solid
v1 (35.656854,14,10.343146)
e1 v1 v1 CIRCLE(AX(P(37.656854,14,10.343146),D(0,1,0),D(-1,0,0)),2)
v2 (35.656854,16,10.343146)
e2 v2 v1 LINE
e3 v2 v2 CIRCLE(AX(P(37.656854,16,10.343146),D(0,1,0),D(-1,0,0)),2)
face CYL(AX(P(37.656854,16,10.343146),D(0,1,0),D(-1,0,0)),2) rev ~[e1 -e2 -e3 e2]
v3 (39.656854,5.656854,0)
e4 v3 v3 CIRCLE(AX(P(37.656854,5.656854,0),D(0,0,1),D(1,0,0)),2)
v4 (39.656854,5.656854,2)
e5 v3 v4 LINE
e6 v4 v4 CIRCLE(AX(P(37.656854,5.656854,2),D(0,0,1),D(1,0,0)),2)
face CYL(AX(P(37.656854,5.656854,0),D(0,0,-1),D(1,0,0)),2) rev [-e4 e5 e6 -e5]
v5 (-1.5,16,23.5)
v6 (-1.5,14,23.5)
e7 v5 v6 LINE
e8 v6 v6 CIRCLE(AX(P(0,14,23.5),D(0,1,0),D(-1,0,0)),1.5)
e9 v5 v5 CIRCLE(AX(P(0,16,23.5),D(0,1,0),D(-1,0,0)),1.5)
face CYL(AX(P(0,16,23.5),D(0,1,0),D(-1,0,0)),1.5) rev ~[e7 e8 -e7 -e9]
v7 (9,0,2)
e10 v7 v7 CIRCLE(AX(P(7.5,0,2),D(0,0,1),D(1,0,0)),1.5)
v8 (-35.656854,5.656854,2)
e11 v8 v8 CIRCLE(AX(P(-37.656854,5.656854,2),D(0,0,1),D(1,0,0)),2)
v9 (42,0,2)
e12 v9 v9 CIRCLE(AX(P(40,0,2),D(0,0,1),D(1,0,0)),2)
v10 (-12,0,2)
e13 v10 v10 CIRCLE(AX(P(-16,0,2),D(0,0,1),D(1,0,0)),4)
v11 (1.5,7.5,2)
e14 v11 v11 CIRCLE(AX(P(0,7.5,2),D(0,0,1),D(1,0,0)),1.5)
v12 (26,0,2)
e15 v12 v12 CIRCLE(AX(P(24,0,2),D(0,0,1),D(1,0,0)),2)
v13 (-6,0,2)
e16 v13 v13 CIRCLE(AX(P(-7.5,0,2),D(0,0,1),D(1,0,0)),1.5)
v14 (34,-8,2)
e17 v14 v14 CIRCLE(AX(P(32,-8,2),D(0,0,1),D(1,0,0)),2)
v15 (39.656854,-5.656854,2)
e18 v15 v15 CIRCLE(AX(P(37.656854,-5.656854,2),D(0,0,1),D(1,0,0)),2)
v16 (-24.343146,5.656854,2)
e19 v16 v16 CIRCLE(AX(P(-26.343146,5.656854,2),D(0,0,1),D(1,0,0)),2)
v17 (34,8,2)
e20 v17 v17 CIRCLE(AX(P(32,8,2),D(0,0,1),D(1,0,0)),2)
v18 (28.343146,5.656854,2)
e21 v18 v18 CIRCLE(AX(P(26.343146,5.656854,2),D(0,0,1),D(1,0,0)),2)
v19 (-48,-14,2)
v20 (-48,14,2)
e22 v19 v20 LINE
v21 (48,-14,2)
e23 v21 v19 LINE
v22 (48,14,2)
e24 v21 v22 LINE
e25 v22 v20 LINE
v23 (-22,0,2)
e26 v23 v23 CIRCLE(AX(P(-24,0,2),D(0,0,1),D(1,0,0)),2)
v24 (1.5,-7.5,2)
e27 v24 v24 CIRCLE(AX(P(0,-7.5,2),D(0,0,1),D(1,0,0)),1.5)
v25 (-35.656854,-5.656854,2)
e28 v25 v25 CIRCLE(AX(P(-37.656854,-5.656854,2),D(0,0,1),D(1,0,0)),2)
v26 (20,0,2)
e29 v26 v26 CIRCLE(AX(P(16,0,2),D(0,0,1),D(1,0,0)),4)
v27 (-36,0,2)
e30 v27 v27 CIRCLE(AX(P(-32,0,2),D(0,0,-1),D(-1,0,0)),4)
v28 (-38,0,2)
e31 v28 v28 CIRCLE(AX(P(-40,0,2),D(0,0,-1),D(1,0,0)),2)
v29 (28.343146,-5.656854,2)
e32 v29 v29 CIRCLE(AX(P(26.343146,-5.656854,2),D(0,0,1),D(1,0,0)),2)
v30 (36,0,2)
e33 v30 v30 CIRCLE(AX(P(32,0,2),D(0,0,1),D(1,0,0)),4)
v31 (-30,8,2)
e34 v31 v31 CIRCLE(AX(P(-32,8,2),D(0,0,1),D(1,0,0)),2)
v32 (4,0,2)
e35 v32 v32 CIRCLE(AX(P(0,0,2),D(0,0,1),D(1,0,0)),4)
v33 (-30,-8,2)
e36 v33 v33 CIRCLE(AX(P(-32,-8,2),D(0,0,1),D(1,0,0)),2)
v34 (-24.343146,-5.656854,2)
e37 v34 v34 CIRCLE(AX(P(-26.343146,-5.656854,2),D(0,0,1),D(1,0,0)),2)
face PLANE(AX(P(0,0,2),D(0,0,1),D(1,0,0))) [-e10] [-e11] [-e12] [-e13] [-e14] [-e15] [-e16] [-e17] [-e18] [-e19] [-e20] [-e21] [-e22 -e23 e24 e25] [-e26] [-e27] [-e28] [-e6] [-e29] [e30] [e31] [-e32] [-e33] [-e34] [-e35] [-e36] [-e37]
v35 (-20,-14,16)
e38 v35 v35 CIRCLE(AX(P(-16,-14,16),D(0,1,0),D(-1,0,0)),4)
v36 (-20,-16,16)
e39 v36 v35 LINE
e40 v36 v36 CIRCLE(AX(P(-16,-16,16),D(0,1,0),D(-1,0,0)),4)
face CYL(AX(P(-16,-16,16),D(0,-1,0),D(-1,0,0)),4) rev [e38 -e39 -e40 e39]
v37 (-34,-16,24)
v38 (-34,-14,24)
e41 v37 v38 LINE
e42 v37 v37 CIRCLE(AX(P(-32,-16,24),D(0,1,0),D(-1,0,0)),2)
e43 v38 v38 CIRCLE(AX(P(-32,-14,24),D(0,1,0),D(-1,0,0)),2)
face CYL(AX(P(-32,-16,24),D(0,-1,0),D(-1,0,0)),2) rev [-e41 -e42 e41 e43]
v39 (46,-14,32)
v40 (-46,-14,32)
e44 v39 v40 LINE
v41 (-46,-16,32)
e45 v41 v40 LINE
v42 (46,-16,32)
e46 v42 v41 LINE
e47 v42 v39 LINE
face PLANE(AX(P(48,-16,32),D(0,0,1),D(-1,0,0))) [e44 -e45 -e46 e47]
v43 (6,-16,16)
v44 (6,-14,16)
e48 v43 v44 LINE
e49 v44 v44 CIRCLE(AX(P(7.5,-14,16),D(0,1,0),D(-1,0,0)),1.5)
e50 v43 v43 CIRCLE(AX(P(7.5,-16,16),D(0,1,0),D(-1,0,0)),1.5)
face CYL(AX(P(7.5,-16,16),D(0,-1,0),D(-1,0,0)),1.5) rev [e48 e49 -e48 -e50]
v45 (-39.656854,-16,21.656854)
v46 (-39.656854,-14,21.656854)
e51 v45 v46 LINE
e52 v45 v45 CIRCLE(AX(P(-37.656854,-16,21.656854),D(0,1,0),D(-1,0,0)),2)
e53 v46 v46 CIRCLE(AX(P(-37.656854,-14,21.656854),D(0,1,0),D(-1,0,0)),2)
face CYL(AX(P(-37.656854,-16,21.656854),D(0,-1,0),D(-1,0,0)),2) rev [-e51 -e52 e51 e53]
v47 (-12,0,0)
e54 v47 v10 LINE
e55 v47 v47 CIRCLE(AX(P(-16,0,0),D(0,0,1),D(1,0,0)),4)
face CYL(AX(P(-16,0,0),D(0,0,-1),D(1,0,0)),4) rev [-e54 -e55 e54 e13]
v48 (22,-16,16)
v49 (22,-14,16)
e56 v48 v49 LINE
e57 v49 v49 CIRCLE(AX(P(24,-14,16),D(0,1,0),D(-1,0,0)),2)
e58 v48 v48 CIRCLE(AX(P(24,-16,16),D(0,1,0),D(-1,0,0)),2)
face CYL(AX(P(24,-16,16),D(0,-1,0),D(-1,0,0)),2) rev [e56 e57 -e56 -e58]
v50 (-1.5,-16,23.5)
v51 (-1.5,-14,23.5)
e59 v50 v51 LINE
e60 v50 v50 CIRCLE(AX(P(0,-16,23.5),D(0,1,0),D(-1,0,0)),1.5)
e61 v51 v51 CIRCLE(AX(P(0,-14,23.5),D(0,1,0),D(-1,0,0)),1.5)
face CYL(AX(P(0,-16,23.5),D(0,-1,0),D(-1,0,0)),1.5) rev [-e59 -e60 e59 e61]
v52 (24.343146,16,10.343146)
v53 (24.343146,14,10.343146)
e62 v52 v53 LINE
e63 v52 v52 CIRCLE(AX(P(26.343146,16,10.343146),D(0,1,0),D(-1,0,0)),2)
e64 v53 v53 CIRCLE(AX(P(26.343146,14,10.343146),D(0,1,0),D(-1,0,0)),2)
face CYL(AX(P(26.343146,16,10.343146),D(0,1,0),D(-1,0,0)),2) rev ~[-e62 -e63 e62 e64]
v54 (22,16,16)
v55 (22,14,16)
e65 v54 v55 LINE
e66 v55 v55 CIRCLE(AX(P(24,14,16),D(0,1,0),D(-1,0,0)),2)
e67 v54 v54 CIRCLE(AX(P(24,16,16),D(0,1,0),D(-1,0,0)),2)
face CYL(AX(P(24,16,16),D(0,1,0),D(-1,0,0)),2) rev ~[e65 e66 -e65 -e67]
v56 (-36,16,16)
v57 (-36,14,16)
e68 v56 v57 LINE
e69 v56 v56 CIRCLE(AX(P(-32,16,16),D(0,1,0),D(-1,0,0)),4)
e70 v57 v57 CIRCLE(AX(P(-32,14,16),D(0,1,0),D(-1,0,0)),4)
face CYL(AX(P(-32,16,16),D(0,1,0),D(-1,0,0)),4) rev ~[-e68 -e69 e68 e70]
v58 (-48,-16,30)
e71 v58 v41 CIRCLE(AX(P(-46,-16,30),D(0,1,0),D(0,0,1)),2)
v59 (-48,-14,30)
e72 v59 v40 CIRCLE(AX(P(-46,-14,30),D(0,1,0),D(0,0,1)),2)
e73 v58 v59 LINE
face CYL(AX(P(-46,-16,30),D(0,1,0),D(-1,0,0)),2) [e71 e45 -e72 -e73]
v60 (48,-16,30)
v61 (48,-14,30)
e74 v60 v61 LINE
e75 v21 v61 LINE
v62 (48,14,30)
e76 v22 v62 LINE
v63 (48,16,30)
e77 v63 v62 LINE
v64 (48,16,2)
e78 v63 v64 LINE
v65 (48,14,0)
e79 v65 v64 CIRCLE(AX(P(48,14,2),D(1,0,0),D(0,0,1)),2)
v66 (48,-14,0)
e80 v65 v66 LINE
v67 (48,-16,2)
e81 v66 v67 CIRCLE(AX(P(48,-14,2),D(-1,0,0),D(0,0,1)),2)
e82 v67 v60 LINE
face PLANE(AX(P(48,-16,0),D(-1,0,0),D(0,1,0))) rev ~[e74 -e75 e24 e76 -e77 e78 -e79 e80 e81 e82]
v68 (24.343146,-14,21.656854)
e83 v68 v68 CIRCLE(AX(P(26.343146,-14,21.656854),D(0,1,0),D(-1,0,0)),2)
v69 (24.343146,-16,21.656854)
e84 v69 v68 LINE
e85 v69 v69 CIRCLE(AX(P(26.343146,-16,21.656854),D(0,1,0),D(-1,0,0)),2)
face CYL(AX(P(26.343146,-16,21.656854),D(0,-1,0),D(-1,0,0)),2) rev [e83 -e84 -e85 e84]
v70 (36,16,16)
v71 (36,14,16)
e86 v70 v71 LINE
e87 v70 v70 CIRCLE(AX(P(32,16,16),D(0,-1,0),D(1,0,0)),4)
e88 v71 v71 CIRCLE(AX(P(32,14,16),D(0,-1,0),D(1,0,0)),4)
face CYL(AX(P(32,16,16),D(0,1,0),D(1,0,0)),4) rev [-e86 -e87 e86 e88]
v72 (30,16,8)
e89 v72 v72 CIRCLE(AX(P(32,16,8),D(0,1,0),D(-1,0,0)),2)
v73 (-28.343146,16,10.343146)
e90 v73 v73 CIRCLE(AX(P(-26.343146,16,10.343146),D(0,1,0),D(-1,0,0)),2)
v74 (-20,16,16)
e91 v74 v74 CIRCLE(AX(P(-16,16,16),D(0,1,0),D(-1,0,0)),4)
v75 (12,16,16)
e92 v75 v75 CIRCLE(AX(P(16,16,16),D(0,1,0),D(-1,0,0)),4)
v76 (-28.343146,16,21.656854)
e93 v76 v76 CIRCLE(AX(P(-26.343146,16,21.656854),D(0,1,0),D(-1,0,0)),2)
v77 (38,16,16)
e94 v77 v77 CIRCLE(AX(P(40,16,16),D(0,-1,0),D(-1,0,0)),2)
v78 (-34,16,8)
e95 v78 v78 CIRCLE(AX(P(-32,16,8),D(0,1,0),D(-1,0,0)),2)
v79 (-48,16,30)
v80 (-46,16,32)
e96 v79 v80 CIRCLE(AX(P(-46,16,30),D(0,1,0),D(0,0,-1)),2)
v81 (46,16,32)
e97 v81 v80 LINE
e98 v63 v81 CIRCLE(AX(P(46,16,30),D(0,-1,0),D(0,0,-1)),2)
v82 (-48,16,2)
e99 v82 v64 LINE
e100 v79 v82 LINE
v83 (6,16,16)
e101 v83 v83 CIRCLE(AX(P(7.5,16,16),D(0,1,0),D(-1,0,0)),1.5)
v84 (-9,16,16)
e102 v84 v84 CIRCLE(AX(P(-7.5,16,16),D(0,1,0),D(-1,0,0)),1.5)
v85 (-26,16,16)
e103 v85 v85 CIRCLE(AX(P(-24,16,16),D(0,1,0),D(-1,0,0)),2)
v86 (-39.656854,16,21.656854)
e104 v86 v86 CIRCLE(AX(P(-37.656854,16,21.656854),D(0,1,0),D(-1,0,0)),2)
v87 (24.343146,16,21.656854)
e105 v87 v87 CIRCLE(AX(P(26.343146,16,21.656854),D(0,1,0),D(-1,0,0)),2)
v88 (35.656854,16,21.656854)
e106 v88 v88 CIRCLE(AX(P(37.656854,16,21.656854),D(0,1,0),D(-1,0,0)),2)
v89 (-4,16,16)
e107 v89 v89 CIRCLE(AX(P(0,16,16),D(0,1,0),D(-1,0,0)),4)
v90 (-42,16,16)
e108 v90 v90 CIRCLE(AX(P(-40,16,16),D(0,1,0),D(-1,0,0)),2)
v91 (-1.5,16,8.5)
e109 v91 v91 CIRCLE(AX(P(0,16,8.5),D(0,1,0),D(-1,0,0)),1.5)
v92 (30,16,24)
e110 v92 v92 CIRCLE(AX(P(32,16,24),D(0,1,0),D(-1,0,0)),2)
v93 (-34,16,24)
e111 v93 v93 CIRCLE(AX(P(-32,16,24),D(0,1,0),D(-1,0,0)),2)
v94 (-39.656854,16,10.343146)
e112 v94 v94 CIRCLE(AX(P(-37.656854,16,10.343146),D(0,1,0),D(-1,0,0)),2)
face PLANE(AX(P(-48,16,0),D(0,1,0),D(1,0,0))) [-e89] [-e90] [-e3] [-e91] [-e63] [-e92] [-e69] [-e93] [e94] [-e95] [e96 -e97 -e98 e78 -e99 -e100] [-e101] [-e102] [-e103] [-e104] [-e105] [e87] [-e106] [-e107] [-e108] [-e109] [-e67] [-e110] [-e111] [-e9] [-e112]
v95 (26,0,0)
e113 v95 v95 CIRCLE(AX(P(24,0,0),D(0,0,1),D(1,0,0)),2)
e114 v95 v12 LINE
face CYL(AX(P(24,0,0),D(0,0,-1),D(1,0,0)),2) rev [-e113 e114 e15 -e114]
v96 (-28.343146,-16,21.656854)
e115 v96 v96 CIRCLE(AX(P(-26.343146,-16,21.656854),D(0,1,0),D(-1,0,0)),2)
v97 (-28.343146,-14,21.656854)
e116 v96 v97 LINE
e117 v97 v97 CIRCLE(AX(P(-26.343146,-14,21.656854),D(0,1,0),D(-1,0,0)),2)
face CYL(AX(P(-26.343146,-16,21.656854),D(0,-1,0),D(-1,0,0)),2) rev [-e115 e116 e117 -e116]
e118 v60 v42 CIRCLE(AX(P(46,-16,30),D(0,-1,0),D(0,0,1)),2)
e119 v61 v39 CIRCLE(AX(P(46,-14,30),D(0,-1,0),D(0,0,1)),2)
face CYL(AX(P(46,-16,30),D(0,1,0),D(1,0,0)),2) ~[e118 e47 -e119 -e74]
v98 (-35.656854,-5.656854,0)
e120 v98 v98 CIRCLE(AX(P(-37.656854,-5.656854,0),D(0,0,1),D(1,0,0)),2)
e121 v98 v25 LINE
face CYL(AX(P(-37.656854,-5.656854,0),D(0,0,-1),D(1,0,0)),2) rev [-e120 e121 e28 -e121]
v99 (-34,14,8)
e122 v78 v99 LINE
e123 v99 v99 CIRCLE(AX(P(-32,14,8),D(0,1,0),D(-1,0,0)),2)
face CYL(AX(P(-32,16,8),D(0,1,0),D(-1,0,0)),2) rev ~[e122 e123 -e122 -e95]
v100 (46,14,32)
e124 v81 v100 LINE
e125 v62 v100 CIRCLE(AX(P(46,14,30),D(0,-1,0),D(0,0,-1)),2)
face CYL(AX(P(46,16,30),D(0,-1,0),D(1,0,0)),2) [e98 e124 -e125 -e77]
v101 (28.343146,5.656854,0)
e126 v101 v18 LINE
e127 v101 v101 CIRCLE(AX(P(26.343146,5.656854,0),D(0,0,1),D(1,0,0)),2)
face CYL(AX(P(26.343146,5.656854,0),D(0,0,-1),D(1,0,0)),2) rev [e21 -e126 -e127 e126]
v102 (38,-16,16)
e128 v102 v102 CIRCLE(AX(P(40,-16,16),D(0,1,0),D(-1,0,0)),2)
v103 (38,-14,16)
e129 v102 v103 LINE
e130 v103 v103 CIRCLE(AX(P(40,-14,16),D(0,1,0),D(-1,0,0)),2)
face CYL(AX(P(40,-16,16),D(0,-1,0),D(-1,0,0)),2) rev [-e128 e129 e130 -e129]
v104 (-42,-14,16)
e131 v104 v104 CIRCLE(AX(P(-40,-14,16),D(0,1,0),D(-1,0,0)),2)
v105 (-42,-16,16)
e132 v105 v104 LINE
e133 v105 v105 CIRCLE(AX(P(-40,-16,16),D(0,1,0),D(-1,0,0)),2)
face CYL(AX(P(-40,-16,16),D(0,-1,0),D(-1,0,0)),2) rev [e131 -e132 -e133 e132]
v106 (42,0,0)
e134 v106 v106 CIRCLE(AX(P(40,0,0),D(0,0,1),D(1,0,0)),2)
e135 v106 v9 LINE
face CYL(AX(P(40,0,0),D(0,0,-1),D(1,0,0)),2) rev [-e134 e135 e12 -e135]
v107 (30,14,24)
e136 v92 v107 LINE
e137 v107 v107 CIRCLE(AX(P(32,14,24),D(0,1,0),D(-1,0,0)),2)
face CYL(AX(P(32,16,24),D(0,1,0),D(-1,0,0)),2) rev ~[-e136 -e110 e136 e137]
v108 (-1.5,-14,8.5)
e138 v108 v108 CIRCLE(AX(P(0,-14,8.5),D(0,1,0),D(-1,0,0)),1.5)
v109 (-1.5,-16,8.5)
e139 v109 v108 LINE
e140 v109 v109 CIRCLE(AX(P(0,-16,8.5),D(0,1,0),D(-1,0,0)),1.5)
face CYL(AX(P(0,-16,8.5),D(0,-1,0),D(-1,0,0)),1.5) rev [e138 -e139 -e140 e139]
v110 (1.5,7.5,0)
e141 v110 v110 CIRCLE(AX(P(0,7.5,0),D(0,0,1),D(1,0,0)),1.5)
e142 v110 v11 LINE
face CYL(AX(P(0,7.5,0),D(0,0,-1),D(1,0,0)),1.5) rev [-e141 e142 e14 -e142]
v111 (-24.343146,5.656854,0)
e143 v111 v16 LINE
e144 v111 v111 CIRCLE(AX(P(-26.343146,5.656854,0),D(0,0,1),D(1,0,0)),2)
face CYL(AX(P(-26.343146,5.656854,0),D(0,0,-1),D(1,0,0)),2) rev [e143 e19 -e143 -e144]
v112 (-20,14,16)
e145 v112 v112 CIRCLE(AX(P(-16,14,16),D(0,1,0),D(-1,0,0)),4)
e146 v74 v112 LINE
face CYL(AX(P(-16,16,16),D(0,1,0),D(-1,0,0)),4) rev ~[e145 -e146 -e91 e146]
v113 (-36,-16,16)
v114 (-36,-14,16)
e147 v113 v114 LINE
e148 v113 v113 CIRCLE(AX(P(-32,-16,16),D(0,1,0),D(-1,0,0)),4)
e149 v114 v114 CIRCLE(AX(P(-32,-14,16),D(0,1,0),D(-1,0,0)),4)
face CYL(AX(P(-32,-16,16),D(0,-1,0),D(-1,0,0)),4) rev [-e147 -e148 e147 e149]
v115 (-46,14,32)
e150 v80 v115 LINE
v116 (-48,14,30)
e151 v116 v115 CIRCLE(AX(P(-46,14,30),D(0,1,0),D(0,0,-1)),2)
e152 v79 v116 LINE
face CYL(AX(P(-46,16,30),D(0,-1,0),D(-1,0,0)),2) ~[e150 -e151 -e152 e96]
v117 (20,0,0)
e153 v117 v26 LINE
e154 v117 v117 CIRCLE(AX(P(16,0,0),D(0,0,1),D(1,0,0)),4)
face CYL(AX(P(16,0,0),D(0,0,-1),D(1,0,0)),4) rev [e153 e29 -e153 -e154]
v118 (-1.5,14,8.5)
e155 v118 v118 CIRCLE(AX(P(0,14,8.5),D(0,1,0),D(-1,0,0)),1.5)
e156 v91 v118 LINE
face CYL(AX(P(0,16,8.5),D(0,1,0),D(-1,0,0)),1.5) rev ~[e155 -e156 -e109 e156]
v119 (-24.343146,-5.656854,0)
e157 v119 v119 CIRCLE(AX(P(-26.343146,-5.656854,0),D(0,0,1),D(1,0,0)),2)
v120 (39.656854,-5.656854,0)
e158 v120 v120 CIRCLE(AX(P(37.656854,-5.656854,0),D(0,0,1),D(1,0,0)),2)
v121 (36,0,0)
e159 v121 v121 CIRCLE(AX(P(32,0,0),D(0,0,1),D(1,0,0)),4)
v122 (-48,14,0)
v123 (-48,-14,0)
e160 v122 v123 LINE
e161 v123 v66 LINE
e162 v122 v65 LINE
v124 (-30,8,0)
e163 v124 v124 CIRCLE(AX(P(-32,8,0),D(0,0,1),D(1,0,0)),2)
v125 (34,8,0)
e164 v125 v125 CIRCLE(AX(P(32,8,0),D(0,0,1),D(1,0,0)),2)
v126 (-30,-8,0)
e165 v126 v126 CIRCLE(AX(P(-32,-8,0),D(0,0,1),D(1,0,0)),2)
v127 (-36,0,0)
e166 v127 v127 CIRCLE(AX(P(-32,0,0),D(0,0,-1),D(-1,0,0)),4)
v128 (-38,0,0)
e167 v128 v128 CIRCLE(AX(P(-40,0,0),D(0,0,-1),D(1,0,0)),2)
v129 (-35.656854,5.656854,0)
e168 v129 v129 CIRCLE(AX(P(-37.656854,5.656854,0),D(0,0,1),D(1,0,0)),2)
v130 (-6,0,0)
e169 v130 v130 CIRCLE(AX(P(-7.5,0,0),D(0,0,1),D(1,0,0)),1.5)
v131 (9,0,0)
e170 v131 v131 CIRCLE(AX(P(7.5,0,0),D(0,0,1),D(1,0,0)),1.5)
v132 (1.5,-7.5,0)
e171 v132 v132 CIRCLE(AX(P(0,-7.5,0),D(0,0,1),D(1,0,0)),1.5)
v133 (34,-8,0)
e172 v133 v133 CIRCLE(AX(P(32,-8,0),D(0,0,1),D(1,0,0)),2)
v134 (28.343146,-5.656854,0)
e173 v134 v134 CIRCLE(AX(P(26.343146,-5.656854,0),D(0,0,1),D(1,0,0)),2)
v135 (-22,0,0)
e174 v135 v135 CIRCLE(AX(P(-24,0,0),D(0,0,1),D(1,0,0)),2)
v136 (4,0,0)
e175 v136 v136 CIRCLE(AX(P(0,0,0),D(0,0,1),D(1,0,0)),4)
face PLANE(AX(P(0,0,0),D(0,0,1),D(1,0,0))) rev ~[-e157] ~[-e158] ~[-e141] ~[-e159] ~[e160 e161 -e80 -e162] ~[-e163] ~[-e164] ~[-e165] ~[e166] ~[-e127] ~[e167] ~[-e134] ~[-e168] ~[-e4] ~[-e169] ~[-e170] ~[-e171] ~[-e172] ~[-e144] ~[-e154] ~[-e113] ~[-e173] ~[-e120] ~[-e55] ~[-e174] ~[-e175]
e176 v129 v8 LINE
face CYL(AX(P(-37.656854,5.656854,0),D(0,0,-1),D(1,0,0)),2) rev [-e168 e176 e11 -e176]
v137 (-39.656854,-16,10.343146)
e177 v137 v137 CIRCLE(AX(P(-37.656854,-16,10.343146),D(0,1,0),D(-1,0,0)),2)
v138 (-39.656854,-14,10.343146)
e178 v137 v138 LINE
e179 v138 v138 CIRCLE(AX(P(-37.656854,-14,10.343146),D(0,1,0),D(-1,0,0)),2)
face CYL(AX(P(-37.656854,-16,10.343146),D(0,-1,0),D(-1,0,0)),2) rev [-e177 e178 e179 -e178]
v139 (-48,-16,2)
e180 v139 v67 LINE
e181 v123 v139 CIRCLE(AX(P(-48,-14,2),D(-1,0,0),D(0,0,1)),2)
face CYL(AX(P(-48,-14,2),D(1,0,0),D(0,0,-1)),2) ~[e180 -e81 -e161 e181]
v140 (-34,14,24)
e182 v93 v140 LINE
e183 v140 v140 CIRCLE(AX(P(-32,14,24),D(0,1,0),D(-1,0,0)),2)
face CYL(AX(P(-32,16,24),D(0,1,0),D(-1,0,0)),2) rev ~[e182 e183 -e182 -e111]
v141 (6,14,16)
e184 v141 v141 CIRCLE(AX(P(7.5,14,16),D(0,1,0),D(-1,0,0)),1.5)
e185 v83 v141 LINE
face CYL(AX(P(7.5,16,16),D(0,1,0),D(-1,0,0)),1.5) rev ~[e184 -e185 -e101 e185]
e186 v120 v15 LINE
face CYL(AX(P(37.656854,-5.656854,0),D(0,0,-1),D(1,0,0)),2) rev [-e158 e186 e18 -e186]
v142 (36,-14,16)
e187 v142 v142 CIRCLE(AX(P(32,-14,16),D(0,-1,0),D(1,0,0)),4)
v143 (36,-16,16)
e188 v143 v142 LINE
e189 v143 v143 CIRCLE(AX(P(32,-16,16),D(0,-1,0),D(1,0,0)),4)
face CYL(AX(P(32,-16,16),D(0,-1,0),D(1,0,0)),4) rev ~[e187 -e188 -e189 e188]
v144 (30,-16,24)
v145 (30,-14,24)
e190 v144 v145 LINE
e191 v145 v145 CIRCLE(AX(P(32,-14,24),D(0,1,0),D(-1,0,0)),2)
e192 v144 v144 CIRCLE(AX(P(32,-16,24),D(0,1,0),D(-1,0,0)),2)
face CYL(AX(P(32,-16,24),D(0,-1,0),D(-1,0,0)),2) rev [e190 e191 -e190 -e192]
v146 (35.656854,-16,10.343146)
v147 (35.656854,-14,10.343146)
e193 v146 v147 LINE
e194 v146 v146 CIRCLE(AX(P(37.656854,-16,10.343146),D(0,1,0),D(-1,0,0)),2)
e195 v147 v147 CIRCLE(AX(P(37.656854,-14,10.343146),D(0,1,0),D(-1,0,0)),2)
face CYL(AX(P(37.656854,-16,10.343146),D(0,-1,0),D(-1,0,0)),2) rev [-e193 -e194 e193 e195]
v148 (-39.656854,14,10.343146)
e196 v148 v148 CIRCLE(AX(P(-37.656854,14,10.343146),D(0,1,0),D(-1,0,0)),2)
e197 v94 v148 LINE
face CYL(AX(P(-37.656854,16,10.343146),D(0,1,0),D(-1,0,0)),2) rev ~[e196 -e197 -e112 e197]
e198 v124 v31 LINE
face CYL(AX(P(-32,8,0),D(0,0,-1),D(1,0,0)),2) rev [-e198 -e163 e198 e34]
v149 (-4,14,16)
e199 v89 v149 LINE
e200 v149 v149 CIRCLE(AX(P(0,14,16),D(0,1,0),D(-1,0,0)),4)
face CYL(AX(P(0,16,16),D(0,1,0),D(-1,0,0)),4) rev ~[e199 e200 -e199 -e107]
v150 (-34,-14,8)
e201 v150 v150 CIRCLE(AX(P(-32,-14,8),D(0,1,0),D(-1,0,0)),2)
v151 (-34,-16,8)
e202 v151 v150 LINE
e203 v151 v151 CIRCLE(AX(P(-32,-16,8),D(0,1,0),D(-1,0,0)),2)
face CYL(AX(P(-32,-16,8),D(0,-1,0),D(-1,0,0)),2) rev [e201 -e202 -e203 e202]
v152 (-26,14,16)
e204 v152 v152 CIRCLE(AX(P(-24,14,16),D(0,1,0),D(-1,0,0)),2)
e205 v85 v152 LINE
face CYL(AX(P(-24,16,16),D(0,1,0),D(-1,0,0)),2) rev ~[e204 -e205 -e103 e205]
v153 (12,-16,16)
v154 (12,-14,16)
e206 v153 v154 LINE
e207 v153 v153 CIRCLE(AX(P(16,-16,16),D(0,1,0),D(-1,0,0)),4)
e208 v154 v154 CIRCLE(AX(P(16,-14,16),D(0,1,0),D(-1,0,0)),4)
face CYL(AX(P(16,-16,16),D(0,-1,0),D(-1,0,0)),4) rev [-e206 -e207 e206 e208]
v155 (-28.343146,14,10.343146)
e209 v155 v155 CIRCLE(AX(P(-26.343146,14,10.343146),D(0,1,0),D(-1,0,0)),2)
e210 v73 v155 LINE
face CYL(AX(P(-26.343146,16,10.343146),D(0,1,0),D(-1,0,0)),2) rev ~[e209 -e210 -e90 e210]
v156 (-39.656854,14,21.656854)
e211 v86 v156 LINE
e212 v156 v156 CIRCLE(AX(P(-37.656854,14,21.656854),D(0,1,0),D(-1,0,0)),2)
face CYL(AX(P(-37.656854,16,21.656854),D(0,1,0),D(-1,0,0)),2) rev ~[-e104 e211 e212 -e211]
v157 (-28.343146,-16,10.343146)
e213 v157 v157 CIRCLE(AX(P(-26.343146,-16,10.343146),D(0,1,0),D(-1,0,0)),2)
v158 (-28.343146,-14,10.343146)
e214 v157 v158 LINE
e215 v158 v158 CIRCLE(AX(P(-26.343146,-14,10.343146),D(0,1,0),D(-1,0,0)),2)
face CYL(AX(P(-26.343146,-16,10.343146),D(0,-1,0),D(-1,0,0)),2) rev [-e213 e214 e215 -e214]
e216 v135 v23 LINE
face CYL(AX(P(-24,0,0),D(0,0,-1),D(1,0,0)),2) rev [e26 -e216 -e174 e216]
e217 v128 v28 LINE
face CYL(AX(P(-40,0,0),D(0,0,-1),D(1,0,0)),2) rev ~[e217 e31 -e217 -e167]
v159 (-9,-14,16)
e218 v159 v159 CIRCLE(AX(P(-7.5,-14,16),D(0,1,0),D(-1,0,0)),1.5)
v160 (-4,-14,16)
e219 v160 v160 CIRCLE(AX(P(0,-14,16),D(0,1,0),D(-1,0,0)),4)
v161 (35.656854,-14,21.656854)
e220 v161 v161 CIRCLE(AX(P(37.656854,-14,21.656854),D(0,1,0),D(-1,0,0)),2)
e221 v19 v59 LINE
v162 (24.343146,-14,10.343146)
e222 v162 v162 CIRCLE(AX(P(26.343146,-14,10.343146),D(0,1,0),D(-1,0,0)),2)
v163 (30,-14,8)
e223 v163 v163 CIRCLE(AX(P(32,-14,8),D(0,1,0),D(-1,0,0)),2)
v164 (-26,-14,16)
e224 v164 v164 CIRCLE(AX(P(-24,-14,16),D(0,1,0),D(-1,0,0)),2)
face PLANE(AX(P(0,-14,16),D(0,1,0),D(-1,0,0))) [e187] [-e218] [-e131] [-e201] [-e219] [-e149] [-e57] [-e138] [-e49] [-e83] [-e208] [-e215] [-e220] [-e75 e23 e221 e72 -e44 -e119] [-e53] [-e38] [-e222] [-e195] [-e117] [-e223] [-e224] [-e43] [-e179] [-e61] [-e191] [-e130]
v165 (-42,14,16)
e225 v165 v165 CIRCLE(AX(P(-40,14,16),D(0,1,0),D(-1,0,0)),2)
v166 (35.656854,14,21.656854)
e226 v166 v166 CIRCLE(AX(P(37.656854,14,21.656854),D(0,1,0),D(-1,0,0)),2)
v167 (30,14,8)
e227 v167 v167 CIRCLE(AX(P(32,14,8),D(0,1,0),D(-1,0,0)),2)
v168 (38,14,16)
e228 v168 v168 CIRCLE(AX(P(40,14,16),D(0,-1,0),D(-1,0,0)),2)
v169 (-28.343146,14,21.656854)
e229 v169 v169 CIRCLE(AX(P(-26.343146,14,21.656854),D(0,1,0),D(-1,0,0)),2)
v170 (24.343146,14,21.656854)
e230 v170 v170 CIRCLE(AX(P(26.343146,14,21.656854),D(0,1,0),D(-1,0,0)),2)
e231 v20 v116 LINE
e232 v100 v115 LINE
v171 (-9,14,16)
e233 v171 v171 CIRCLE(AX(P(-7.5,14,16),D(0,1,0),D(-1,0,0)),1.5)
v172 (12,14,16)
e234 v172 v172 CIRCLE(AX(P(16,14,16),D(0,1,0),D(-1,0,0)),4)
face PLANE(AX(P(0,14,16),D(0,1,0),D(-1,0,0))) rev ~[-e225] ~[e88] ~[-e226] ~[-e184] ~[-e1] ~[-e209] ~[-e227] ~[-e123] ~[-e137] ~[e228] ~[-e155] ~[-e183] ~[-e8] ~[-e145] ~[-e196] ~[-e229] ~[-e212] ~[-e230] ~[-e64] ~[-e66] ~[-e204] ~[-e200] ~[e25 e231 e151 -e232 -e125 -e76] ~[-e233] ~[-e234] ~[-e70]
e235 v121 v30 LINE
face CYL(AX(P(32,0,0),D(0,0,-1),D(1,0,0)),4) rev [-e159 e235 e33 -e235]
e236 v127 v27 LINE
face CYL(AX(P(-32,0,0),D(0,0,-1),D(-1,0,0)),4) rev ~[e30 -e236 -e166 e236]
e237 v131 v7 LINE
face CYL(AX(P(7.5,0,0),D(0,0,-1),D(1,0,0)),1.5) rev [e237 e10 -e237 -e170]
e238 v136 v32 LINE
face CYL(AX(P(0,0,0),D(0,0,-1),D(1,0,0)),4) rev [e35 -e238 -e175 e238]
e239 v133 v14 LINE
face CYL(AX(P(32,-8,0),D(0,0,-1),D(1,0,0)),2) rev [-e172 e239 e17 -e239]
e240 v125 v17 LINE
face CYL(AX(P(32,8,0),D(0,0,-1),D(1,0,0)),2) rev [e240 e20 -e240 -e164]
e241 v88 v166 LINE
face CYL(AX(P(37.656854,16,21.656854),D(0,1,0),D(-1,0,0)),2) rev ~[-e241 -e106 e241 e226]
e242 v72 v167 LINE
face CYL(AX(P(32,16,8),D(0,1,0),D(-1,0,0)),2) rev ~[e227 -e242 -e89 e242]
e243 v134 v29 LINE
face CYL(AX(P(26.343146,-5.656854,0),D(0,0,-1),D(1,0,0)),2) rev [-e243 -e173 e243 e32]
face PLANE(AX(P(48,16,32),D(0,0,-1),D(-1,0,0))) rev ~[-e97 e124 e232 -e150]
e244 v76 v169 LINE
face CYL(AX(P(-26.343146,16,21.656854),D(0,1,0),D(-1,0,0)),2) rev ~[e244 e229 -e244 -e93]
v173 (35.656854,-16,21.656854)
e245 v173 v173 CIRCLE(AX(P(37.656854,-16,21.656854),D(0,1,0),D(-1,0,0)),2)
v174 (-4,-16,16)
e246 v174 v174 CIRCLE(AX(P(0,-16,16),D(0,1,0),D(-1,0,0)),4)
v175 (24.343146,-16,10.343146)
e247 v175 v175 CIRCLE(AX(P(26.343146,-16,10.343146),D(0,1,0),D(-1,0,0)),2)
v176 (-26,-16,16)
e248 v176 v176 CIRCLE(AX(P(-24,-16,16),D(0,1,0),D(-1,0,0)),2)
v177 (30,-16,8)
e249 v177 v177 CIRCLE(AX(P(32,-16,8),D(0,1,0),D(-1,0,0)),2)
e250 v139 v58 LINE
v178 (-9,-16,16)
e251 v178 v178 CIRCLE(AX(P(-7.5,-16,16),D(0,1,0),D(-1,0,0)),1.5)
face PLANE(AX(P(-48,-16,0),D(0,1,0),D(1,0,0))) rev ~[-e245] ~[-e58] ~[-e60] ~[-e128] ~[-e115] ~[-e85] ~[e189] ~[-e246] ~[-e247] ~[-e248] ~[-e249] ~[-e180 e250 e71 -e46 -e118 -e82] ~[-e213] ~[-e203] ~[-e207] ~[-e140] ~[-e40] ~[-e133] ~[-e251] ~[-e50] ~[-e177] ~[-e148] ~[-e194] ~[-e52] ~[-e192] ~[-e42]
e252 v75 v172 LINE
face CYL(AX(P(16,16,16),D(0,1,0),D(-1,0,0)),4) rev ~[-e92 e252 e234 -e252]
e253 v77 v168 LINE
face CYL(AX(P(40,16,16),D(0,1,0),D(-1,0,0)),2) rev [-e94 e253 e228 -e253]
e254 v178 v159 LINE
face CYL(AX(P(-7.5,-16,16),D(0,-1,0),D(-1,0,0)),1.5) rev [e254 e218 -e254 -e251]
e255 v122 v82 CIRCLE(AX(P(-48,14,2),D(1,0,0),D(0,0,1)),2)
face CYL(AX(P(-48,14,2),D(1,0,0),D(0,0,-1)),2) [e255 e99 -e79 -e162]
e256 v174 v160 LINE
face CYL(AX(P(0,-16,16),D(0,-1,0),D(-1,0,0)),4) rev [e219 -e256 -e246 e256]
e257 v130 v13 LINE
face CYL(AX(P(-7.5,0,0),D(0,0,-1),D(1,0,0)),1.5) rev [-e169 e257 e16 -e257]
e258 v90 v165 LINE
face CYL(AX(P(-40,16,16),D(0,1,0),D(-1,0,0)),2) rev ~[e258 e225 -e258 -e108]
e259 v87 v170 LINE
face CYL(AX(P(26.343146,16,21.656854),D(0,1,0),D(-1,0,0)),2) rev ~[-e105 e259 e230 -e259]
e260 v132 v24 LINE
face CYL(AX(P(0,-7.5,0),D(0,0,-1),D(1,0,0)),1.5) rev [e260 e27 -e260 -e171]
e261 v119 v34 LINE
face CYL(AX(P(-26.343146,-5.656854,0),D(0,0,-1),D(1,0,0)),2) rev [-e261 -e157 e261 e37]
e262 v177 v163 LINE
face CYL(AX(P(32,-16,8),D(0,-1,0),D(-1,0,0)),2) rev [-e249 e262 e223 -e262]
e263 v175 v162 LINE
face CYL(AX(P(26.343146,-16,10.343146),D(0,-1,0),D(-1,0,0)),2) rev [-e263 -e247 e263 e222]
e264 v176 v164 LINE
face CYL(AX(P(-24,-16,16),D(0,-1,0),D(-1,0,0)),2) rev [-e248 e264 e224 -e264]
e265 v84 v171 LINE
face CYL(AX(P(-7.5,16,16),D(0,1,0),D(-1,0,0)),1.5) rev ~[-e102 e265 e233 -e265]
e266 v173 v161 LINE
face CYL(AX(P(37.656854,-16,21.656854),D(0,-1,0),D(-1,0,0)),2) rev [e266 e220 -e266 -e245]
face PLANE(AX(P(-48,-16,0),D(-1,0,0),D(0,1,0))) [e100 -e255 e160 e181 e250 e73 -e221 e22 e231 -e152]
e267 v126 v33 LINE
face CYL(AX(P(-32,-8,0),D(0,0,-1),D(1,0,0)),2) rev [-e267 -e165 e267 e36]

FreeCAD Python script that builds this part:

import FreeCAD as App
import Part
import Sketcher
Q = App.Units.Quantity


def edges_at(feature, points):
    """Names of the edges that pass closest to the given points."""
    edges = feature.Shape.Edges
    near = lambda p: min(range(len(edges)), key=lambda i: edges[i].distToShape(Part.Vertex(*p))[0])
    return sorted({f"Edge{near(p) + 1}" for p in points})

doc = App.newDocument("Part")
params = doc.addObject("Spreadsheet::Sheet", "Params")
for row, (alias, value) in enumerate([
    ("sketch1_diameter", "4 mm"),
    ("sketch1_diameter2", "3 mm"),
    ("sketch1_diameter3", "8 mm"),
    ("sketch1_width", "96 mm"),
    ("sketch1_height", "32 mm"),
    ("pad1_length", "2 mm"),
    ("sketch2_diameter", "4 mm"),
    ("sketch2_diameter2", "3 mm"),
    ("sketch2_diameter3", "8 mm"),
    ("sketch2_width", "96 mm"),
    ("sketch2_height", "32 mm"),
    ("pad2_length", "2 mm"),
    ("sketch3_diameter", "4 mm"),
    ("sketch3_diameter2", "3 mm"),
    ("sketch3_diameter3", "8 mm"),
    ("sketch3_width", "96 mm"),
    ("sketch3_height", "32 mm"),
    ("pad3_length", "2 mm"),
    ("fillet_radius", "2 mm"),
], start=1):
    params.set(f"A{row}", alias)
    params.set(f"B{row}", "=" + value)
    params.setAlias(f"B{row}", alias)

body = doc.addObject("PartDesign::Body", "Body")

# Sketch on XY plane
sketch1 = body.newObject("Sketcher::SketchObject", "Sketch")
sketch1.AttachmentSupport = (doc.getObject("XY_Plane"), [""])
sketch1.MapMode = "FlatFace"
sketch1.addGeometry([
    Part.LineSegment(App.Vector(-48, 16, 0), App.Vector(-48, -16, 0)),  # 0
    Part.LineSegment(App.Vector(-48, -16, 0), App.Vector(48, -16, 0)),  # 1
    Part.LineSegment(App.Vector(48, -16, 0), App.Vector(48, 16, 0)),  # 2
    Part.LineSegment(App.Vector(48, 16, 0), App.Vector(-48, 16, 0)),  # 3
    Part.Circle(App.Vector(-32, -8, 0), App.Vector(0, 0, 1), 2),  # 4
    Part.Circle(App.Vector(-37.7, -5.7, 0), App.Vector(0, 0, 1), 2),  # 5
    Part.Circle(App.Vector(-26.3, -5.7, 0), App.Vector(0, 0, 1), 2),  # 6
    Part.Circle(App.Vector(0, -7.5, 0), App.Vector(0, 0, 1), 1.5),  # 7
    Part.Circle(App.Vector(32, -8, 0), App.Vector(0, 0, 1), 2),  # 8
    Part.Circle(App.Vector(26.3, -5.7, 0), App.Vector(0, 0, 1), 2),  # 9
    Part.Circle(App.Vector(37.7, -5.7, 0), App.Vector(0, 0, 1), 2),  # 10
    Part.Circle(App.Vector(-40, 0, 0), App.Vector(0, 0, 1), 2),  # 11
    Part.Circle(App.Vector(-32, 0, 0), App.Vector(0, 0, 1), 4),  # 12
    Part.Circle(App.Vector(-24, 0, 0), App.Vector(0, 0, 1), 2),  # 13
    Part.Circle(App.Vector(-16, 0, 0), App.Vector(0, 0, 1), 4),  # 14
    Part.Circle(App.Vector(-7.5, 0, 0), App.Vector(0, 0, 1), 1.5),  # 15
    Part.Circle(App.Vector(-37.7, 5.7, 0), App.Vector(0, 0, 1), 2),  # 16
    Part.Circle(App.Vector(-26.3, 5.7, 0), App.Vector(0, 0, 1), 2),  # 17
    Part.Circle(App.Vector(-32, 8, 0), App.Vector(0, 0, 1), 2),  # 18
    Part.Circle(App.Vector(0, 0, 0), App.Vector(0, 0, 1), 4),  # 19
    Part.Circle(App.Vector(7.5, 0, 0), App.Vector(0, 0, 1), 1.5),  # 20
    Part.Circle(App.Vector(16, 0, 0), App.Vector(0, 0, 1), 4),  # 21
    Part.Circle(App.Vector(24, 0, 0), App.Vector(0, 0, 1), 2),  # 22
    Part.Circle(App.Vector(32, 0, 0), App.Vector(0, 0, 1), 4),  # 23
    Part.Circle(App.Vector(40, 0, 0), App.Vector(0, 0, 1), 2),  # 24
    Part.Circle(App.Vector(0, 7.5, 0), App.Vector(0, 0, 1), 1.5),  # 25
    Part.Circle(App.Vector(26.3, 5.7, 0), App.Vector(0, 0, 1), 2),  # 26
    Part.Circle(App.Vector(37.7, 5.7, 0), App.Vector(0, 0, 1), 2),  # 27
    Part.Circle(App.Vector(32, 8, 0), App.Vector(0, 0, 1), 2),  # 28
], False)
sketch1.addConstraint([
    Sketcher.Constraint("Coincident", 0, 2, 1, 1),
    Sketcher.Constraint("Coincident", 1, 2, 2, 1),
    Sketcher.Constraint("Coincident", 2, 2, 3, 1),
    Sketcher.Constraint("Coincident", 3, 2, 0, 1),
    Sketcher.Constraint("Vertical", 0),
    Sketcher.Constraint("Horizontal", 1),
    Sketcher.Constraint("Vertical", 2),
    Sketcher.Constraint("Horizontal", 3),
    Sketcher.Constraint("Coincident", 19, 3, -1, 1),
    Sketcher.Constraint("Equal", 4, 5),
    Sketcher.Constraint("Equal", 5, 6),
    Sketcher.Constraint("Equal", 6, 8),
    Sketcher.Constraint("Equal", 8, 9),
    Sketcher.Constraint("Equal", 9, 10),
    Sketcher.Constraint("Equal", 10, 11),
    Sketcher.Constraint("Equal", 11, 13),
    Sketcher.Constraint("Equal", 12, 14),
    Sketcher.Constraint("Equal", 7, 15),
    Sketcher.Constraint("Equal", 13, 16),
    Sketcher.Constraint("Equal", 16, 17),
    Sketcher.Constraint("Equal", 17, 18),
    Sketcher.Constraint("Equal", 14, 19),
    Sketcher.Constraint("Equal", 15, 20),
    Sketcher.Constraint("Equal", 19, 21),
    Sketcher.Constraint("Equal", 18, 22),
    Sketcher.Constraint("Equal", 21, 23),
    Sketcher.Constraint("Equal", 22, 24),
    Sketcher.Constraint("Equal", 20, 25),
    Sketcher.Constraint("Equal", 24, 26),
    Sketcher.Constraint("Equal", 26, 27),
    Sketcher.Constraint("Equal", 27, 28),
    Sketcher.Constraint("Symmetric", 10, 3, 16, 3, -1, 1),
    Sketcher.Constraint("Symmetric", 9, 3, 17, 3, -1, 1),
    Sketcher.Constraint("Symmetric", 8, 3, 18, 3, -1, 1),
    Sketcher.Constraint("Symmetric", 15, 3, 20, 3, -1, 1),
    Sketcher.Constraint("Symmetric", 14, 3, 21, 3, -1, 1),
    Sketcher.Constraint("Symmetric", 13, 3, 22, 3, -1, 1),
    Sketcher.Constraint("Symmetric", 12, 3, 23, 3, -1, 1),
    Sketcher.Constraint("Symmetric", 11, 3, 24, 3, -1, 1),
    Sketcher.Constraint("Symmetric", 7, 3, 25, 3, -1, 1),
    Sketcher.Constraint("Symmetric", 6, 3, 26, 3, -1, 1),
    Sketcher.Constraint("Symmetric", 5, 3, 27, 3, -1, 1),
    Sketcher.Constraint("Symmetric", 4, 3, 28, 3, -1, 1),
    Sketcher.Constraint("Symmetric", 0, 2, 2, 2, -1, 1),
    Sketcher.Constraint("Symmetric", 4, 3, 8, 3, -2),
    Sketcher.Constraint("Symmetric", 6, 3, 9, 3, -2),
    Sketcher.Constraint("Symmetric", 5, 3, 10, 3, -2),
    Sketcher.Constraint("PointOnObject", 7, 3, -2),
    Sketcher.Constraint("PointOnObject", 11, 3, -1),
    Sketcher.Constraint("PointOnObject", 12, 3, -1),
    Sketcher.Constraint("PointOnObject", 13, 3, -1),
    Sketcher.Constraint("PointOnObject", 14, 3, -1),
    Sketcher.Constraint("PointOnObject", 15, 3, -1),
    Sketcher.Constraint("Horizontal", 5, 3, 6, 3),
    Sketcher.Constraint("Vertical", 4, 3, 12, 3),
    Sketcher.Constraint("Diameter", 4, Q("4 mm")),
    Sketcher.Constraint("Diameter", 7, Q("3 mm")),
    Sketcher.Constraint("Diameter", 12, Q("8 mm")),
    Sketcher.Constraint("DistanceX", 1, 1, 1, 2, Q("96 mm")),
    Sketcher.Constraint("DistanceY", 0, 2, 0, 1, Q("32 mm")),
    Sketcher.Constraint("DistanceX", 4, 3, -1, 1, Q("32 mm")),
    Sketcher.Constraint("DistanceY", 4, 3, -1, 1, Q("8 mm")),
    Sketcher.Constraint("DistanceX", 11, 3, -1, 1, Q("40 mm")),
    Sketcher.Constraint("DistanceX", 13, 3, -1, 1, Q("24 mm")),
    Sketcher.Constraint("DistanceX", 14, 3, -1, 1, Q("16 mm")),
    Sketcher.Constraint("DistanceX", 5, 3, 9, 3, Q("64 mm")),
    Sketcher.Constraint("DistanceX", 15, 3, 20, 3, Q("15 mm")),
    Sketcher.Constraint("DistanceY", 7, 3, 25, 3, Q("15 mm")),
    Sketcher.Constraint("DistanceX", 5, 3, 6, 3, Q("11.313708 mm")),
    Sketcher.Constraint("DistanceY", 5, 3, -1, 1, Q("5.656854 mm")),
])
sketch1.setExpression("Constraints[55]", "Params.sketch1_diameter")
sketch1.setExpression("Constraints[56]", "Params.sketch1_diameter2")
sketch1.setExpression("Constraints[57]", "Params.sketch1_diameter3")
sketch1.setExpression("Constraints[58]", "Params.sketch1_width")
sketch1.setExpression("Constraints[59]", "Params.sketch1_height")
pad1 = body.newObject("PartDesign::Pad", "Pad")
pad1.Profile = sketch1
pad1.setExpression("Length", "Params.pad1_length")

# Sketch on XZ plane
sketch2 = body.newObject("Sketcher::SketchObject", "Sketch001")
sketch2.AttachmentSupport = (doc.getObject("XZ_Plane"), [""])
sketch2.MapMode = "FlatFace"
sketch2.AttachmentOffset = App.Placement(App.Vector(0, 0, -16), App.Rotation())
sketch2.addGeometry([
    Part.LineSegment(App.Vector(48, 32, 0), App.Vector(48, 0, 0)),  # 0
    Part.LineSegment(App.Vector(48, 0, 0), App.Vector(-48, 0, 0)),  # 1
    Part.LineSegment(App.Vector(-48, 0, 0), App.Vector(-48, 32, 0)),  # 2
    Part.LineSegment(App.Vector(-48, 32, 0), App.Vector(48, 32, 0)),  # 3
    Part.Circle(App.Vector(32, 8, 0), App.Vector(0, 0, 1), 2),  # 4
    Part.Circle(App.Vector(37.7, 10.3, 0), App.Vector(0, 0, 1), 2),  # 5
    Part.Circle(App.Vector(26.3, 10.3, 0), App.Vector(0, 0, 1), 2),  # 6
    Part.Circle(App.Vector(0, 8.5, 0), App.Vector(0, 0, 1), 1.5),  # 7
    Part.Circle(App.Vector(-32, 8, 0), App.Vector(0, 0, 1), 2),  # 8
    Part.Circle(App.Vector(-26.3, 10.3, 0), App.Vector(0, 0, 1), 2),  # 9
    Part.Circle(App.Vector(-37.7, 10.3, 0), App.Vector(0, 0, 1), 2),  # 10
    Part.Circle(App.Vector(40, 16, 0), App.Vector(0, 0, 1), 2),  # 11
    Part.Circle(App.Vector(32, 16, 0), App.Vector(0, 0, 1), 4),  # 12
    Part.Circle(App.Vector(24, 16, 0), App.Vector(0, 0, 1), 2),  # 13
    Part.Circle(App.Vector(16, 16, 0), App.Vector(0, 0, 1), 4),  # 14
    Part.Circle(App.Vector(7.5, 16, 0), App.Vector(0, 0, 1), 1.5),  # 15
    Part.Circle(App.Vector(37.7, 21.7, 0), App.Vector(0, 0, 1), 2),  # 16
    Part.Circle(App.Vector(26.3, 21.7, 0), App.Vector(0, 0, 1), 2),  # 17
    Part.Circle(App.Vector(32, 24, 0), App.Vector(0, 0, 1), 2),  # 18
    Part.Circle(App.Vector(0, 16, 0), App.Vector(0, 0, 1), 4),  # 19
    Part.Circle(App.Vector(-7.5, 16, 0), App.Vector(0, 0, 1), 1.5),  # 20
    Part.Circle(App.Vector(-16, 16, 0), App.Vector(0, 0, 1), 4),  # 21
    Part.Circle(App.Vector(-24, 16, 0), App.Vector(0, 0, 1), 2),  # 22
    Part.Circle(App.Vector(-32, 16, 0), App.Vector(0, 0, 1), 4),  # 23
    Part.Circle(App.Vector(-40, 16, 0), App.Vector(0, 0, 1), 2),  # 24
    Part.Circle(App.Vector(0, 23.5, 0), App.Vector(0, 0, 1), 1.5),  # 25
    Part.Circle(App.Vector(-26.3, 21.7, 0), App.Vector(0, 0, 1), 2),  # 26
    Part.Circle(App.Vector(-37.7, 21.7, 0), App.Vector(0, 0, 1), 2),  # 27
    Part.Circle(App.Vector(-32, 24, 0), App.Vector(0, 0, 1), 2),  # 28
], False)
sketch2.addConstraint([
    Sketcher.Constraint("Coincident", 0, 2, 1, 1),
    Sketcher.Constraint("Coincident", 1, 2, 2, 1),
    Sketcher.Constraint("Coincident", 2, 2, 3, 1),
    Sketcher.Constraint("Coincident", 3, 2, 0, 1),
    Sketcher.Constraint("Vertical", 0),
    Sketcher.Constraint("Horizontal", 1),
    Sketcher.Constraint("Vertical", 2),
    Sketcher.Constraint("Horizontal", 3),
    Sketcher.Constraint("Equal", 4, 5),
    Sketcher.Constraint("Equal", 5, 6),
    Sketcher.Constraint("Equal", 6, 8),
    Sketcher.Constraint("Equal", 8, 9),
    Sketcher.Constraint("Equal", 9, 10),
    Sketcher.Constraint("Equal", 10, 11),
    Sketcher.Constraint("Equal", 11, 13),
    Sketcher.Constraint("Equal", 12, 14),
    Sketcher.Constraint("Equal", 7, 15),
    Sketcher.Constraint("Equal", 13, 16),
    Sketcher.Constraint("Equal", 16, 17),
    Sketcher.Constraint("Equal", 17, 18),
    Sketcher.Constraint("Equal", 14, 19),
    Sketcher.Constraint("Equal", 15, 20),
    Sketcher.Constraint("Equal", 19, 21),
    Sketcher.Constraint("Equal", 18, 22),
    Sketcher.Constraint("Equal", 21, 23),
    Sketcher.Constraint("Equal", 22, 24),
    Sketcher.Constraint("Equal", 20, 25),
    Sketcher.Constraint("Equal", 24, 26),
    Sketcher.Constraint("Equal", 26, 27),
    Sketcher.Constraint("Equal", 27, 28),
    Sketcher.Constraint("Symmetric", 0, 2, 1, 2, -1, 1),
    Sketcher.Constraint("Symmetric", 4, 3, 8, 3, -2),
    Sketcher.Constraint("Symmetric", 6, 3, 9, 3, -2),
    Sketcher.Constraint("Symmetric", 5, 3, 10, 3, -2),
    Sketcher.Constraint("Symmetric", 15, 3, 20, 3, -2),
    Sketcher.Constraint("Symmetric", 14, 3, 21, 3, -2),
    Sketcher.Constraint("Symmetric", 13, 3, 22, 3, -2),
    Sketcher.Constraint("Symmetric", 12, 3, 23, 3, -2),
    Sketcher.Constraint("Symmetric", 11, 3, 24, 3, -2),
    Sketcher.Constraint("Symmetric", 17, 3, 26, 3, -2),
    Sketcher.Constraint("Symmetric", 16, 3, 27, 3, -2),
    Sketcher.Constraint("Symmetric", 18, 3, 28, 3, -2),
    Sketcher.Constraint("PointOnObject", 7, 3, -2),
    Sketcher.Constraint("PointOnObject", 19, 3, -2),
    Sketcher.Constraint("PointOnObject", 25, 3, -2),
    Sketcher.Constraint("Horizontal", 5, 3, 6, 3),
    Sketcher.Constraint("Horizontal", 11, 3, 12, 3),
    Sketcher.Constraint("Horizontal", 12, 3, 13, 3),
    Sketcher.Constraint("Horizontal", 13, 3, 14, 3),
    Sketcher.Constraint("Horizontal", 14, 3, 15, 3),
    Sketcher.Constraint("Horizontal", 16, 3, 17, 3),
    Sketcher.Constraint("Horizontal", 15, 3, 19, 3),
    Sketcher.Constraint("Vertical", 4, 3, 12, 3),
    Sketcher.Constraint("Vertical", 5, 3, 16, 3),
    Sketcher.Constraint("Vertical", 6, 3, 17, 3),
    Sketcher.Constraint("Vertical", 12, 3, 18, 3),
    Sketcher.Constraint("Diameter", 4, Q("4 mm")),
    Sketcher.Constraint("Diameter", 7, Q("3 mm")),
    Sketcher.Constraint("Diameter", 12, Q("8 mm")),
    Sketcher.Constraint("DistanceX", 1, 2, 1, 1, Q("96 mm")),
    Sketcher.Constraint("DistanceY", 0, 2, 0, 1, Q("32 mm")),
    Sketcher.Constraint("DistanceX", -1, 1, 4, 3, Q("32 mm")),
    Sketcher.Constraint("DistanceY", -1, 1, 4, 3, Q("8 mm")),
    Sketcher.Constraint("DistanceX", -1, 1, 11, 3, Q("40 mm")),
    Sketcher.Constraint("DistanceY", -1, 1, 11, 3, Q("16 mm")),
    Sketcher.Constraint("DistanceX", -1, 1, 13, 3, Q("24 mm")),
    Sketcher.Constraint("DistanceX", -1, 1, 14, 3, Q("16 mm")),
    Sketcher.Constraint("DistanceY", -1, 1, 18, 3, Q("24 mm")),
    Sketcher.Constraint("DistanceX", 9, 3, 5, 3, Q("64 mm")),
    Sketcher.Constraint("DistanceX", 20, 3, 15, 3, Q("15 mm")),
    Sketcher.Constraint("DistanceY", 7, 3, 25, 3, Q("15 mm")),
    Sketcher.Constraint("DistanceY", -1, 1, 7, 3, Q("8.5 mm")),
    Sketcher.Constraint("DistanceX", 6, 3, 5, 3, Q("11.313708 mm")),
    Sketcher.Constraint("DistanceY", -1, 1, 5, 3, Q("10.343146 mm")),
    Sketcher.Constraint("DistanceY", -1, 1, 16, 3, Q("21.656854 mm")),
])
sketch2.setExpression("Constraints[56]", "Params.sketch2_diameter")
sketch2.setExpression("Constraints[57]", "Params.sketch2_diameter2")
sketch2.setExpression("Constraints[58]", "Params.sketch2_diameter3")
sketch2.setExpression("Constraints[59]", "Params.sketch2_width")
sketch2.setExpression("Constraints[60]", "Params.sketch2_height")
pad2 = body.newObject("PartDesign::Pad", "Pad001")
pad2.Profile = sketch2
pad2.setExpression("Length", "Params.pad2_length")

# Sketch on XZ plane
sketch3 = body.newObject("Sketcher::SketchObject", "Sketch002")
sketch3.AttachmentSupport = (doc.getObject("XZ_Plane"), [""])
sketch3.MapMode = "FlatFace"
sketch3.AttachmentOffset = App.Placement(App.Vector(0, 0, 16), App.Rotation())
sketch3.addGeometry([
    Part.LineSegment(App.Vector(48, 32, 0), App.Vector(48, 0, 0)),  # 0
    Part.LineSegment(App.Vector(48, 0, 0), App.Vector(-48, 0, 0)),  # 1
    Part.LineSegment(App.Vector(-48, 0, 0), App.Vector(-48, 32, 0)),  # 2
    Part.LineSegment(App.Vector(-48, 32, 0), App.Vector(48, 32, 0)),  # 3
    Part.Circle(App.Vector(32, 8, 0), App.Vector(0, 0, 1), 2),  # 4
    Part.Circle(App.Vector(37.7, 10.3, 0), App.Vector(0, 0, 1), 2),  # 5
    Part.Circle(App.Vector(26.3, 10.3, 0), App.Vector(0, 0, 1), 2),  # 6
    Part.Circle(App.Vector(0, 8.5, 0), App.Vector(0, 0, 1), 1.5),  # 7
    Part.Circle(App.Vector(-32, 8, 0), App.Vector(0, 0, 1), 2),  # 8
    Part.Circle(App.Vector(-26.3, 10.3, 0), App.Vector(0, 0, 1), 2),  # 9
    Part.Circle(App.Vector(-37.7, 10.3, 0), App.Vector(0, 0, 1), 2),  # 10
    Part.Circle(App.Vector(40, 16, 0), App.Vector(0, 0, 1), 2),  # 11
    Part.Circle(App.Vector(32, 16, 0), App.Vector(0, 0, 1), 4),  # 12
    Part.Circle(App.Vector(24, 16, 0), App.Vector(0, 0, 1), 2),  # 13
    Part.Circle(App.Vector(16, 16, 0), App.Vector(0, 0, 1), 4),  # 14
    Part.Circle(App.Vector(7.5, 16, 0), App.Vector(0, 0, 1), 1.5),  # 15
    Part.Circle(App.Vector(37.7, 21.7, 0), App.Vector(0, 0, 1), 2),  # 16
    Part.Circle(App.Vector(26.3, 21.7, 0), App.Vector(0, 0, 1), 2),  # 17
    Part.Circle(App.Vector(32, 24, 0), App.Vector(0, 0, 1), 2),  # 18
    Part.Circle(App.Vector(0, 16, 0), App.Vector(0, 0, 1), 4),  # 19
    Part.Circle(App.Vector(-7.5, 16, 0), App.Vector(0, 0, 1), 1.5),  # 20
    Part.Circle(App.Vector(-16, 16, 0), App.Vector(0, 0, 1), 4),  # 21
    Part.Circle(App.Vector(-24, 16, 0), App.Vector(0, 0, 1), 2),  # 22
    Part.Circle(App.Vector(-32, 16, 0), App.Vector(0, 0, 1), 4),  # 23
    Part.Circle(App.Vector(-40, 16, 0), App.Vector(0, 0, 1), 2),  # 24
    Part.Circle(App.Vector(0, 23.5, 0), App.Vector(0, 0, 1), 1.5),  # 25
    Part.Circle(App.Vector(-26.3, 21.7, 0), App.Vector(0, 0, 1), 2),  # 26
    Part.Circle(App.Vector(-37.7, 21.7, 0), App.Vector(0, 0, 1), 2),  # 27
    Part.Circle(App.Vector(-32, 24, 0), App.Vector(0, 0, 1), 2),  # 28
], False)
sketch3.addConstraint([
    Sketcher.Constraint("Coincident", 0, 2, 1, 1),
    Sketcher.Constraint("Coincident", 1, 2, 2, 1),
    Sketcher.Constraint("Coincident", 2, 2, 3, 1),
    Sketcher.Constraint("Coincident", 3, 2, 0, 1),
    Sketcher.Constraint("Vertical", 0),
    Sketcher.Constraint("Horizontal", 1),
    Sketcher.Constraint("Vertical", 2),
    Sketcher.Constraint("Horizontal", 3),
    Sketcher.Constraint("Equal", 4, 5),
    Sketcher.Constraint("Equal", 5, 6),
    Sketcher.Constraint("Equal", 6, 8),
    Sketcher.Constraint("Equal", 8, 9),
    Sketcher.Constraint("Equal", 9, 10),
    Sketcher.Constraint("Equal", 10, 11),
    Sketcher.Constraint("Equal", 11, 13),
    Sketcher.Constraint("Equal", 12, 14),
    Sketcher.Constraint("Equal", 7, 15),
    Sketcher.Constraint("Equal", 13, 16),
    Sketcher.Constraint("Equal", 16, 17),
    Sketcher.Constraint("Equal", 17, 18),
    Sketcher.Constraint("Equal", 14, 19),
    Sketcher.Constraint("Equal", 15, 20),
    Sketcher.Constraint("Equal", 19, 21),
    Sketcher.Constraint("Equal", 18, 22),
    Sketcher.Constraint("Equal", 21, 23),
    Sketcher.Constraint("Equal", 22, 24),
    Sketcher.Constraint("Equal", 20, 25),
    Sketcher.Constraint("Equal", 24, 26),
    Sketcher.Constraint("Equal", 26, 27),
    Sketcher.Constraint("Equal", 27, 28),
    Sketcher.Constraint("Symmetric", 0, 2, 1, 2, -1, 1),
    Sketcher.Constraint("Symmetric", 4, 3, 8, 3, -2),
    Sketcher.Constraint("Symmetric", 6, 3, 9, 3, -2),
    Sketcher.Constraint("Symmetric", 5, 3, 10, 3, -2),
    Sketcher.Constraint("Symmetric", 15, 3, 20, 3, -2),
    Sketcher.Constraint("Symmetric", 14, 3, 21, 3, -2),
    Sketcher.Constraint("Symmetric", 13, 3, 22, 3, -2),
    Sketcher.Constraint("Symmetric", 12, 3, 23, 3, -2),
    Sketcher.Constraint("Symmetric", 11, 3, 24, 3, -2),
    Sketcher.Constraint("Symmetric", 17, 3, 26, 3, -2),
    Sketcher.Constraint("Symmetric", 16, 3, 27, 3, -2),
    Sketcher.Constraint("Symmetric", 18, 3, 28, 3, -2),
    Sketcher.Constraint("PointOnObject", 7, 3, -2),
    Sketcher.Constraint("PointOnObject", 19, 3, -2),
    Sketcher.Constraint("PointOnObject", 25, 3, -2),
    Sketcher.Constraint("Horizontal", 5, 3, 6, 3),
    Sketcher.Constraint("Horizontal", 11, 3, 12, 3),
    Sketcher.Constraint("Horizontal", 12, 3, 13, 3),
    Sketcher.Constraint("Horizontal", 13, 3, 14, 3),
    Sketcher.Constraint("Horizontal", 14, 3, 15, 3),
    Sketcher.Constraint("Horizontal", 16, 3, 17, 3),
    Sketcher.Constraint("Horizontal", 15, 3, 19, 3),
    Sketcher.Constraint("Vertical", 4, 3, 12, 3),
    Sketcher.Constraint("Vertical", 5, 3, 16, 3),
    Sketcher.Constraint("Vertical", 6, 3, 17, 3),
    Sketcher.Constraint("Vertical", 12, 3, 18, 3),
    Sketcher.Constraint("Diameter", 4, Q("4 mm")),
    Sketcher.Constraint("Diameter", 7, Q("3 mm")),
    Sketcher.Constraint("Diameter", 12, Q("8 mm")),
    Sketcher.Constraint("DistanceX", 1, 2, 1, 1, Q("96 mm")),
    Sketcher.Constraint("DistanceY", 0, 2, 0, 1, Q("32 mm")),
    Sketcher.Constraint("DistanceX", -1, 1, 4, 3, Q("32 mm")),
    Sketcher.Constraint("DistanceY", -1, 1, 4, 3, Q("8 mm")),
    Sketcher.Constraint("DistanceX", -1, 1, 11, 3, Q("40 mm")),
    Sketcher.Constraint("DistanceY", -1, 1, 11, 3, Q("16 mm")),
    Sketcher.Constraint("DistanceX", -1, 1, 13, 3, Q("24 mm")),
    Sketcher.Constraint("DistanceX", -1, 1, 14, 3, Q("16 mm")),
    Sketcher.Constraint("DistanceY", -1, 1, 18, 3, Q("24 mm")),
    Sketcher.Constraint("DistanceX", 9, 3, 5, 3, Q("64 mm")),
    Sketcher.Constraint("DistanceX", 20, 3, 15, 3, Q("15 mm")),
    Sketcher.Constraint("DistanceY", 7, 3, 25, 3, Q("15 mm")),
    Sketcher.Constraint("DistanceY", -1, 1, 7, 3, Q("8.5 mm")),
    Sketcher.Constraint("DistanceX", 6, 3, 5, 3, Q("11.313708 mm")),
    Sketcher.Constraint("DistanceY", -1, 1, 5, 3, Q("10.343146 mm")),
    Sketcher.Constraint("DistanceY", -1, 1, 16, 3, Q("21.656854 mm")),
])
sketch3.setExpression("Constraints[56]", "Params.sketch3_diameter")
sketch3.setExpression("Constraints[57]", "Params.sketch3_diameter2")
sketch3.setExpression("Constraints[58]", "Params.sketch3_diameter3")
sketch3.setExpression("Constraints[59]", "Params.sketch3_width")
sketch3.setExpression("Constraints[60]", "Params.sketch3_height")
pad3 = body.newObject("PartDesign::Pad", "Pad002")
pad3.Profile = sketch3
pad3.setExpression("Length", "Params.pad3_length")
pad3.Reversed = True
doc.recompute()

fillet = body.newObject("PartDesign::Fillet", "Fillet")
fillet.Base = (pad3, edges_at(pad3, [
    (0, 16, 0),
    (48, 15, 32),
    (48, -15, 32),
    (0, -16, 0),
    (-48, 15, 32),
    (-48, -15, 32),
]))
fillet.setExpression("Radius", "Params.fillet_radius")

doc.recompute()
